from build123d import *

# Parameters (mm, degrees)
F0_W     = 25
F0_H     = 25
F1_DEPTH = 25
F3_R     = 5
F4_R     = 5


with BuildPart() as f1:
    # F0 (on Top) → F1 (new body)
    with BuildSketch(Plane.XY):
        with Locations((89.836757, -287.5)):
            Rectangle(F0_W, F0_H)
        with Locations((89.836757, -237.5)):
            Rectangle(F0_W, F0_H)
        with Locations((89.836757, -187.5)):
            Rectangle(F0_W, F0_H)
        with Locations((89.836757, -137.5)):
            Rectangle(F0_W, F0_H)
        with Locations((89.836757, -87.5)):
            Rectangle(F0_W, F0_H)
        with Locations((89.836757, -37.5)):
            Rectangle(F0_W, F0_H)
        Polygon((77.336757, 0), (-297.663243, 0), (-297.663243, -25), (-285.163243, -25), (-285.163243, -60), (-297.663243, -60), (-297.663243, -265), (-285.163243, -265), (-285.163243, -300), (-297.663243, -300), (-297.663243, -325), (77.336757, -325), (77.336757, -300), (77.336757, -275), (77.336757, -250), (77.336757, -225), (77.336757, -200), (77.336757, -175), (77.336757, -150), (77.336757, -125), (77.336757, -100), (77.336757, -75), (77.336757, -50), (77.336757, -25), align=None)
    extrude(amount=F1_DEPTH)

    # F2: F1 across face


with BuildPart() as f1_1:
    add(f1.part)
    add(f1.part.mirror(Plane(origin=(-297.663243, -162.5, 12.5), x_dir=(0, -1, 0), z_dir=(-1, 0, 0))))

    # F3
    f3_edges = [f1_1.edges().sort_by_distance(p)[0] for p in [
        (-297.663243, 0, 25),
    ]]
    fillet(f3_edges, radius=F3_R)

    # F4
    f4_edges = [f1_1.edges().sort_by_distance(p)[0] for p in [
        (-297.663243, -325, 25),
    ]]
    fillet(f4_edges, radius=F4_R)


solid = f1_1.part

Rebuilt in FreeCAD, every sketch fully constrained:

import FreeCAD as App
import Part
import Sketcher
from FreeCAD import Vector


def edges_at(feature, points):
    """Names of the edges that pass closest to the given points."""
    edges = feature.Shape.Edges
    near = lambda p: min(range(len(edges)), key=lambda i: edges[i].distToShape(Part.Vertex(*p))[0])
    return sorted({f"Edge{near(p) + 1}" for p in points})


def add_polygon(sketch, points):
    """Adds a closed chain of lines whose ends are joined by coincident constraints."""
    first, n = sketch.GeometryCount, len(points)
    for a, b in zip(points, points[1:] + points[:1]):
        sketch.addGeometry(Part.LineSegment(App.Vector(*a, 0), App.Vector(*b, 0)), False)
    for i in range(n):
        sketch.addConstraint(Sketcher.Constraint("Coincident", first + i, 2, first + (i + 1) % n, 1))

doc = App.newDocument("Part")
body = doc.addObject("PartDesign::Body", "Body")

# Sketch on XY plane
sketch1 = body.newObject("Sketcher::SketchObject", "Sketch")
sketch1.AttachmentSupport = (doc.getObject("XY_Plane"), [""])
sketch1.MapMode = "FlatFace"
add_polygon(sketch1, [(77, -300), (102, -300), (102, -275), (77, -275), (77, -250), (102, -250), (102, -225), (77, -225), (77, -200), (102, -200), (102, -175), (77, -175), (77, -150), (102, -150), (102, -125), (77, -125), (77, -100), (102, -100), (102, -75), (77, -75), (77, -50), (102, -50), (102, -25), (77, -25), (77, 0), (-298, 0), (-298, -25), (-285, -25), (-285, -60), (-298, -60), (-298, -265), (-285, -265), (-285, -300), (-298, -300), (-298, -325), (77, -325)])  # lines 0-35
sketch1.addConstraint([
    Sketcher.Constraint("Horizontal", 0),
    Sketcher.Constraint("Vertical", 1),
    Sketcher.Constraint("Horizontal", 2),
    Sketcher.Constraint("Vertical", 3),
    Sketcher.Constraint("Horizontal", 4),
    Sketcher.Constraint("Vertical", 5),
    Sketcher.Constraint("Horizontal", 6),
    Sketcher.Constraint("Vertical", 7),
    Sketcher.Constraint("Horizontal", 8),
    Sketcher.Constraint("Vertical", 9),
    Sketcher.Constraint("Horizontal", 10),
    Sketcher.Constraint("Vertical", 11),
    Sketcher.Constraint("Horizontal", 12),
    Sketcher.Constraint("Vertical", 13),
    Sketcher.Constraint("Horizontal", 14),
    Sketcher.Constraint("Vertical", 15),
    Sketcher.Constraint("Horizontal", 16),
    Sketcher.Constraint("Vertical", 17),
    Sketcher.Constraint("Horizontal", 18),
    Sketcher.Constraint("Vertical", 19),
    Sketcher.Constraint("Horizontal", 20),
    Sketcher.Constraint("Vertical", 21),
    Sketcher.Constraint("Horizontal", 22),
    Sketcher.Constraint("Vertical", 23),
    Sketcher.Constraint("Horizontal", 24),
    Sketcher.Constraint("Vertical", 25),
    Sketcher.Constraint("Horizontal", 26),
    Sketcher.Constraint("Vertical", 27),
    Sketcher.Constraint("Horizontal", 28),
    Sketcher.Constraint("Vertical", 29),
    Sketcher.Constraint("Horizontal", 30),
    Sketcher.Constraint("Vertical", 31),
    Sketcher.Constraint("Horizontal", 32),
    Sketcher.Constraint("Vertical", 33),
    Sketcher.Constraint("Horizontal", 34),
    Sketcher.Constraint("Vertical", 35),
    Sketcher.Constraint("PointOnObject", 23, 2, -1),
    Sketcher.Constraint("Horizontal", 22, 2, 25, 2),
    Sketcher.Constraint("Horizontal", 0, 2, 31, 2),
    Sketcher.Constraint("Vertical", 1, 2, 4, 2),
    Sketcher.Constraint("Vertical", 3, 2, 6, 2),
    Sketcher.Constraint("Vertical", 5, 2, 8, 2),
    Sketcher.Constraint("Vertical", 7, 2, 10, 2),
    Sketcher.Constraint("Vertical", 9, 2, 12, 2),
    Sketcher.Constraint("Vertical", 11, 2, 14, 2),
    Sketcher.Constraint("Vertical", 13, 2, 16, 2),
    Sketcher.Constraint("Vertical", 15, 2, 18, 2),
    Sketcher.Constraint("Vertical", 17, 2, 20, 2),
    Sketcher.Constraint("Vertical", 19, 2, 22, 2),
    Sketcher.Constraint("Vertical", 25, 2, 28, 2),
    Sketcher.Constraint("Vertical", 27, 2, 30, 2),
    Sketcher.Constraint("Vertical", 29, 2, 32, 2),
    Sketcher.Constraint("Vertical", 23, 2, 34, 2),
    Sketcher.Constraint("Equal", 22, 1),
    Sketcher.Constraint("Equal", 1, 3),
    Sketcher.Constraint("Equal", 3, 5),
    Sketcher.Constraint("Equal", 5, 7),
    Sketcher.Constraint("Equal", 7, 9),
    Sketcher.Constraint("Equal", 9, 11),
    Sketcher.Constraint("Equal", 11, 13),
    Sketcher.Constraint("Equal", 13, 15),
    Sketcher.Constraint("Equal", 15, 17),
    Sketcher.Constraint("Equal", 17, 19),
    Sketcher.Constraint("Equal", 19, 21),
    Sketcher.Constraint("Equal", 21, 23),
    Sketcher.Constraint("Equal", 27, 31),
    Sketcher.Constraint("Equal", 25, 33),
    Sketcher.Constraint("DistanceX", 0, 1, 0, 2, 25.0),
    Sketcher.Constraint("DistanceX", 24, 2, 24, 1, 375.0),
    Sketcher.Constraint("DistanceY", 27, 2, 27, 1, 35.0),
    Sketcher.Constraint("DistanceX", 26, 1, 26, 2, 12.5),
    Sketcher.Constraint("DistanceX", -1, 1, 0, 2, 102.336757),
])
pad1 = body.newObject("PartDesign::Pad", "Pad")
pad1.Profile = sketch1
pad1.Length = 25
body2 = doc.addObject("PartDesign::Body", "Body001")
doc.recompute()

body2.BaseFeature = body
doc.recompute()

mirroring = doc.addObject("Part::Mirroring", "Mirroring")
mirroring.Source = body
mirroring.Base = Vector(-297.663243, -162.5, 12.5)
mirroring.Normal = Vector(-1, 0, 0)
body3 = doc.addObject("PartDesign::Body", "Body002")
body3.BaseFeature = mirroring
boolean = body2.newObject("PartDesign::Boolean", "Boolean")
boolean.Type = "Fuse"
boolean.addObjects([body3])
doc.recompute()

fillet = body2.newObject("PartDesign::Fillet", "Fillet")
fillet.Base = (boolean, edges_at(boolean, [(-297.663, 0, 25)]))
fillet.Radius = 5
doc.recompute()

fillet2 = body2.newObject("PartDesign::Fillet", "Fillet001")
fillet2.Base = (fillet, edges_at(fillet, [(-297.663, -325, 25)]))
fillet2.Radius = 5
mirroring.Visibility = False

doc.recompute()
